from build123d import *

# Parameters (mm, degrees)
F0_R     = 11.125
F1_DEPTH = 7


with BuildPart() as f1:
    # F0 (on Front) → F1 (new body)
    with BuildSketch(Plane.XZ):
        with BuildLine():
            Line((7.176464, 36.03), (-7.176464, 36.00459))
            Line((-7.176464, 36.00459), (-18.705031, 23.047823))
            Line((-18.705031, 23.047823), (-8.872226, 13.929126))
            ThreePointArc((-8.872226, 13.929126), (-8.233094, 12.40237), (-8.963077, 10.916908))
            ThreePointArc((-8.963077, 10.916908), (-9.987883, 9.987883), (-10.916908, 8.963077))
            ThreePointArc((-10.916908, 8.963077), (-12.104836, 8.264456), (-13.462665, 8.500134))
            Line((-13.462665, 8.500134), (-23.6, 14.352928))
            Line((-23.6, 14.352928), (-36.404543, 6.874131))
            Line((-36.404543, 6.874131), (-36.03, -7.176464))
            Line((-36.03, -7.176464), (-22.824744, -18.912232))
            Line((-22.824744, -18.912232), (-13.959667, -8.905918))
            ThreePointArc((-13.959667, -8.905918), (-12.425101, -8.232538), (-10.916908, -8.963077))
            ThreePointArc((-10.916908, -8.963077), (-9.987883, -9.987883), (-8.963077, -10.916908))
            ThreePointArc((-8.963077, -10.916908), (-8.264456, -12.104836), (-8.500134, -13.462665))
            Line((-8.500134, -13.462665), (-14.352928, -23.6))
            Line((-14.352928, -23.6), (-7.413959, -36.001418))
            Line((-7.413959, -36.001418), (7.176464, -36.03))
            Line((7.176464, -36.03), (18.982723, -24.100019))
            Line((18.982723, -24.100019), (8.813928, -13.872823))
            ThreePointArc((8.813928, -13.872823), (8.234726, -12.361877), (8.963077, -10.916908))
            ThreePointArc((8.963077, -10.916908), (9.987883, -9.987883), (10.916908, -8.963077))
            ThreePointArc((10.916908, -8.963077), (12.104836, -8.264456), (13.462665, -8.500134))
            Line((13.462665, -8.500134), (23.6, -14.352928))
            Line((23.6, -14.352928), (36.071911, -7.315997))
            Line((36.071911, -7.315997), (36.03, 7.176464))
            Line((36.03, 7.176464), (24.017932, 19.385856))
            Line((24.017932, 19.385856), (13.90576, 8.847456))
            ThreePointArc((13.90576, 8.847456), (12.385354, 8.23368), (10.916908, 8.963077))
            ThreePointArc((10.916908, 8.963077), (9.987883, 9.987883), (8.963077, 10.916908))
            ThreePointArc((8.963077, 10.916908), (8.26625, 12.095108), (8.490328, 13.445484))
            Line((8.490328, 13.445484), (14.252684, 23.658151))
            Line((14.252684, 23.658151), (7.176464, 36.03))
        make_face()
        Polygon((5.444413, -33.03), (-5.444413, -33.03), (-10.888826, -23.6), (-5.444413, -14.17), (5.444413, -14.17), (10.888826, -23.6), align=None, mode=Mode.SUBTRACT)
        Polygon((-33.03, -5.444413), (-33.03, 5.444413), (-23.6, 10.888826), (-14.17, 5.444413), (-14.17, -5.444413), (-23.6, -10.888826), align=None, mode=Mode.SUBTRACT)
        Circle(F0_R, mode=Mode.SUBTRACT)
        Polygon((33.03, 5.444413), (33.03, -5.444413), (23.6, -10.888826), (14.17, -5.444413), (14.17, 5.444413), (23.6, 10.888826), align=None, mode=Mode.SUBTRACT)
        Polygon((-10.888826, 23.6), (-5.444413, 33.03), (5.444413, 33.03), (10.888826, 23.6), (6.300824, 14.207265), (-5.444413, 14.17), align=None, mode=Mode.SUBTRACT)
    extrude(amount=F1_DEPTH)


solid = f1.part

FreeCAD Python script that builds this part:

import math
import FreeCAD as App
import Part
import Sketcher

V = App.Vector

doc = App.newDocument("Part")
body = doc.addObject("PartDesign::Body", "Body")

# Sketch on XZ plane
sketch1 = doc.addObject("Sketcher::SketchObject", "Sketch")
body.addObject(sketch1)
sketch1.AttachmentSupport = (doc.XZ_Plane, [""])
sketch1.MapMode = "FlatFace"
sketch1.addGeometry([
    Part.LineSegment(V(7.176464, 36.03, 0), V(-7.176464, 36.00459, 0)),  # 0
    Part.LineSegment(V(-7.176464, 36.00459, 0), V(-18.705031, 23.047823, 0)),  # 1
    Part.LineSegment(V(-18.705031, 23.047823, 0), V(-8.872226, 13.929126, 0)),  # 2
    Part.ArcOfCircle(Part.Circle(V(-10.232183, 12.462664, 0), V(0, 0, 1), 1.999998), math.radians(-50.61311), math.radians(47.157981)),  # 3
    Part.ArcOfCircle(Part.Circle(V(0.000083, -0.000083, 0), V(0, 0, 1), 14.125117), math.radians(129.386969), math.radians(140.613031)),  # 4
    Part.ArcOfCircle(Part.Circle(V(-12.462665, 10.232186, 0), V(0, 0, 1), 2.000001), math.radians(-119.99997), math.radians(-39.386935)),  # 5
    Part.LineSegment(V(-13.462665, 8.500134, 0), V(-23.6, 14.352928, 0)),  # 6
    Part.LineSegment(V(-23.6, 14.352928, 0), V(-36.404543, 6.874131, 0)),  # 7
    Part.LineSegment(V(-36.404543, 6.874131, 0), V(-36.03, -7.176464, 0)),  # 8
    Part.LineSegment(V(-36.03, -7.176464, 0), V(-22.824744, -18.912232, 0)),  # 9
    Part.LineSegment(V(-22.824744, -18.912232, 0), V(-13.959667, -8.905918, 0)),  # 10
    Part.ArcOfCircle(Part.Circle(V(-12.462665, -10.232185, 0), V(0, 0, 1), 2), math.radians(39.386921), math.radians(138.460701)),  # 11
    Part.ArcOfCircle(Part.Circle(V(0.000083, 0.000083, 0), V(0, 0, 1), 14.125117), math.radians(-140.613031), math.radians(-129.386969)),  # 12
    Part.ArcOfCircle(Part.Circle(V(-10.232186, -12.462665, 0), V(0, 0, 1), 2.000001), math.radians(-29.99997), math.radians(50.613065)),  # 13
    Part.LineSegment(V(-8.500134, -13.462665, 0), V(-14.352928, -23.6, 0)),  # 14
    Part.LineSegment(V(-14.352928, -23.6, 0), V(-7.413959, -36.001418, 0)),  # 15
    Part.LineSegment(V(-7.413959, -36.001418, 0), V(7.176464, -36.03, 0)),  # 16
    Part.LineSegment(V(7.176464, -36.03, 0), V(18.982723, -24.100019, 0)),  # 17
    Part.LineSegment(V(18.982723, -24.100019, 0), V(8.813928, -13.872823, 0)),  # 18
    Part.ArcOfCircle(Part.Circle(V(10.232184, -12.462665, 0), V(0, 0, 1), 1.999999), math.radians(129.386894), math.radians(224.835966)),  # 19
    Part.ArcOfCircle(Part.Circle(V(-0.000083, 0.000083, 0), V(0, 0, 1), 14.125117), math.radians(-50.613031), math.radians(-39.386969)),  # 20
    Part.ArcOfCircle(Part.Circle(V(12.462665, -10.232186, 0), V(0, 0, 1), 2.000001), math.radians(60.00003), math.radians(140.613065)),  # 21
    Part.LineSegment(V(13.462665, -8.500134, 0), V(23.6, -14.352928, 0)),  # 22
    Part.LineSegment(V(23.6, -14.352928, 0), V(36.071911, -7.315997, 0)),  # 23
    Part.LineSegment(V(36.071911, -7.315997, 0), V(36.03, 7.176464, 0)),  # 24
    Part.LineSegment(V(36.03, 7.176464, 0), V(24.017932, 19.385856, 0)),  # 25
    Part.LineSegment(V(24.017932, 19.385856, 0), V(13.90576, 8.847456, 0)),  # 26
    Part.ArcOfCircle(Part.Circle(V(12.462665, 10.232185, 0), V(0, 0, 1), 1.999999), math.radians(-140.613087), math.radians(-43.817573)),  # 27
    Part.ArcOfCircle(Part.Circle(V(-0.000083, -0.000083, 0), V(0, 0, 1), 14.125117), math.radians(39.386969), math.radians(50.613031)),  # 28
    Part.ArcOfCircle(Part.Circle(V(10.232186, 12.462665, 0), V(0, 0, 1), 2.000001), math.radians(150.566743), math.radians(230.613066)),  # 29
    Part.LineSegment(V(8.490328, 13.445484, 0), V(14.252684, 23.658151, 0)),  # 30
    Part.LineSegment(V(14.252684, 23.658151, 0), V(7.176464, 36.03, 0)),  # 31
    Part.LineSegment(V(10.888826, -23.6, 0), V(5.444413, -33.03, 0)),  # 32
    Part.LineSegment(V(5.444413, -33.03, 0), V(-5.444413, -33.03, 0)),  # 33
    Part.LineSegment(V(-5.444413, -33.03, 0), V(-10.888826, -23.6, 0)),  # 34
    Part.LineSegment(V(-10.888826, -23.6, 0), V(-5.444413, -14.17, 0)),  # 35
    Part.LineSegment(V(-5.444413, -14.17, 0), V(5.444413, -14.17, 0)),  # 36
    Part.LineSegment(V(5.444413, -14.17, 0), V(10.888826, -23.6, 0)),  # 37
    Part.LineSegment(V(-23.6, -10.888826, 0), V(-33.03, -5.444413, 0)),  # 38
    Part.LineSegment(V(-33.03, -5.444413, 0), V(-33.03, 5.444413, 0)),  # 39
    Part.LineSegment(V(-33.03, 5.444413, 0), V(-23.6, 10.888826, 0)),  # 40
    Part.LineSegment(V(-23.6, 10.888826, 0), V(-14.17, 5.444413, 0)),  # 41
    Part.LineSegment(V(-14.17, 5.444413, 0), V(-14.17, -5.444413, 0)),  # 42
    Part.LineSegment(V(-14.17, -5.444413, 0), V(-23.6, -10.888826, 0)),  # 43
    Part.Circle(V(0, 0, 0), V(0, 0, 1), 11.125),  # 44
    Part.LineSegment(V(23.6, 10.888826, 0), V(33.03, 5.444413, 0)),  # 45
    Part.LineSegment(V(33.03, 5.444413, 0), V(33.03, -5.444413, 0)),  # 46
    Part.LineSegment(V(33.03, -5.444413, 0), V(23.6, -10.888826, 0)),  # 47
    Part.LineSegment(V(23.6, -10.888826, 0), V(14.17, -5.444413, 0)),  # 48
    Part.LineSegment(V(14.17, -5.444413, 0), V(14.17, 5.444413, 0)),  # 49
    Part.LineSegment(V(14.17, 5.444413, 0), V(23.6, 10.888826, 0)),  # 50
    Part.LineSegment(V(-5.444413, 14.17, 0), V(-10.888826, 23.6, 0)),  # 51
    Part.LineSegment(V(-10.888826, 23.6, 0), V(-5.444413, 33.03, 0)),  # 52
    Part.LineSegment(V(-5.444413, 33.03, 0), V(5.444413, 33.03, 0)),  # 53
    Part.LineSegment(V(5.444413, 33.03, 0), V(10.888826, 23.6, 0)),  # 54
    Part.LineSegment(V(10.888826, 23.6, 0), V(6.300824, 14.207265, 0)),  # 55
    Part.LineSegment(V(6.300824, 14.207265, 0), V(-5.444413, 14.17, 0)),  # 56
], False)
sketch1.addConstraint([
    Sketcher.Constraint("Coincident", 0, 2, 1, 1),
    Sketcher.Constraint("Coincident", 1, 2, 2, 1),
    Sketcher.Constraint("Coincident", 2, 2, 3, 2),
    Sketcher.Constraint("Coincident", 3, 1, 4, 1),
    Sketcher.Constraint("Coincident", 4, 2, 5, 2),
    Sketcher.Constraint("Coincident", 5, 1, 6, 1),
    Sketcher.Constraint("Coincident", 6, 2, 7, 1),
    Sketcher.Constraint("Coincident", 7, 2, 8, 1),
    Sketcher.Constraint("Coincident", 8, 2, 9, 1),
    Sketcher.Constraint("Coincident", 9, 2, 10, 1),
    Sketcher.Constraint("Coincident", 10, 2, 11, 2),
    Sketcher.Constraint("Coincident", 11, 1, 12, 1),
    Sketcher.Constraint("Coincident", 12, 2, 13, 2),
    Sketcher.Constraint("Coincident", 13, 1, 14, 1),
    Sketcher.Constraint("Coincident", 14, 2, 15, 1),
    Sketcher.Constraint("Coincident", 15, 2, 16, 1),
    Sketcher.Constraint("Coincident", 16, 2, 17, 1),
    Sketcher.Constraint("Coincident", 17, 2, 18, 1),
    Sketcher.Constraint("Coincident", 18, 2, 19, 2),
    Sketcher.Constraint("Coincident", 19, 1, 20, 1),
    Sketcher.Constraint("Coincident", 20, 2, 21, 2),
    Sketcher.Constraint("Coincident", 21, 1, 22, 1),
    Sketcher.Constraint("Coincident", 22, 2, 23, 1),
    Sketcher.Constraint("Coincident", 23, 2, 24, 1),
    Sketcher.Constraint("Coincident", 24, 2, 25, 1),
    Sketcher.Constraint("Coincident", 25, 2, 26, 1),
    Sketcher.Constraint("Coincident", 26, 2, 27, 2),
    Sketcher.Constraint("Coincident", 27, 1, 28, 1),
    Sketcher.Constraint("Coincident", 28, 2, 29, 2),
    Sketcher.Constraint("Coincident", 29, 1, 30, 1),
    Sketcher.Constraint("Coincident", 30, 2, 31, 1),
    Sketcher.Constraint("Coincident", 31, 2, 0, 1),
    Sketcher.Constraint("Coincident", 32, 2, 33, 1),
    Sketcher.Constraint("Coincident", 33, 2, 34, 1),
    Sketcher.Constraint("Coincident", 34, 2, 35, 1),
    Sketcher.Constraint("Coincident", 35, 2, 36, 1),
    Sketcher.Constraint("Coincident", 36, 2, 37, 1),
    Sketcher.Constraint("Coincident", 37, 2, 32, 1),
    Sketcher.Constraint("Coincident", 38, 2, 39, 1),
    Sketcher.Constraint("Coincident", 39, 2, 40, 1),
    Sketcher.Constraint("Coincident", 40, 2, 41, 1),
    Sketcher.Constraint("Coincident", 41, 2, 42, 1),
    Sketcher.Constraint("Coincident", 42, 2, 43, 1),
    Sketcher.Constraint("Coincident", 43, 2, 38, 1),
    Sketcher.Constraint("Coincident", 45, 2, 46, 1),
    Sketcher.Constraint("Coincident", 46, 2, 47, 1),
    Sketcher.Constraint("Coincident", 47, 2, 48, 1),
    Sketcher.Constraint("Coincident", 48, 2, 49, 1),
    Sketcher.Constraint("Coincident", 49, 2, 50, 1),
    Sketcher.Constraint("Coincident", 50, 2, 45, 1),
    Sketcher.Constraint("Coincident", 51, 2, 52, 1),
    Sketcher.Constraint("Coincident", 52, 2, 53, 1),
    Sketcher.Constraint("Coincident", 53, 2, 54, 1),
    Sketcher.Constraint("Coincident", 54, 2, 55, 1),
    Sketcher.Constraint("Coincident", 55, 2, 56, 1),
    Sketcher.Constraint("Coincident", 56, 2, 51, 1),
    Sketcher.Constraint("Horizontal", 33),
    Sketcher.Constraint("Horizontal", 36),
    Sketcher.Constraint("Vertical", 39),
    Sketcher.Constraint("Vertical", 42),
    Sketcher.Constraint("Vertical", 46),
    Sketcher.Constraint("Vertical", 49),
    Sketcher.Constraint("Horizontal", 53),
    Sketcher.Constraint("Coincident", 44, 3, -1, 1),
    Sketcher.Constraint("Radius", 3, 1.999998),
    Sketcher.Constraint("Radius", 5, 2.000001),
    Sketcher.Constraint("Radius", 11, 2.0),
    Sketcher.Constraint("Radius", 13, 2.000001),
    Sketcher.Constraint("Radius", 19, 1.999999),
    Sketcher.Constraint("Radius", 21, 2.000001),
    Sketcher.Constraint("Radius", 27, 1.999999),
    Sketcher.Constraint("Radius", 29, 2.000001),
    Sketcher.Constraint("Diameter", 44, 22.25),
    Sketcher.Constraint("DistanceX", 6, 2, -1, 1, 23.6),
    Sketcher.Constraint("DistanceY", 14, 2, -1, 1, 23.6),
    Sketcher.Constraint("DistanceX", -1, 1, 22, 2, 23.6),
    Sketcher.Constraint("DistanceY", 34, 2, -1, 1, 23.6),
    Sketcher.Constraint("DistanceY", 37, 2, -1, 1, 23.6),
    Sketcher.Constraint("DistanceX", 40, 2, -1, 1, 23.6),
    Sketcher.Constraint("DistanceX", 43, 2, -1, 1, 23.6),
    Sketcher.Constraint("DistanceX", -1, 1, 47, 2, 23.6),
    Sketcher.Constraint("DistanceX", -1, 1, 50, 2, 23.6),
    Sketcher.Constraint("DistanceY", -1, 1, 51, 2, 23.6),
    Sketcher.Constraint("DistanceY", -1, 1, 54, 2, 23.6),
    Sketcher.Constraint("DistanceX", 8, 2, -1, 1, 36.03),
    Sketcher.Constraint("DistanceY", 16, 2, -1, 1, 36.03),
    Sketcher.Constraint("DistanceX", -1, 1, 24, 2, 36.03),
    Sketcher.Constraint("DistanceY", -1, 1, 31, 2, 36.03),
    Sketcher.Constraint("DistanceY", 32, 2, -1, 1, 33.03),
    Sketcher.Constraint("DistanceY", 35, 2, -1, 1, 14.17),
    Sketcher.Constraint("DistanceX", 38, 2, -1, 1, 33.03),
    Sketcher.Constraint("DistanceX", 41, 2, -1, 1, 14.17),
    Sketcher.Constraint("DistanceX", -1, 1, 45, 2, 33.03),
    Sketcher.Constraint("DistanceX", -1, 1, 48, 2, 14.17),
    Sketcher.Constraint("DistanceY", -1, 1, 52, 2, 33.03),
    Sketcher.Constraint("DistanceY", -1, 1, 56, 2, 14.17),
    Sketcher.Constraint("Radius", 4, 14.125117),
    Sketcher.Constraint("Radius", 12, 14.125117),
    Sketcher.Constraint("Radius", 20, 14.125117),
    Sketcher.Constraint("Radius", 28, 14.125117),
    Sketcher.Constraint("Distance", 0, 14.35295),
    Sketcher.Constraint("Distance", 9, 17.666551),
    Sketcher.Constraint("Distance", 16, 14.590451),
    Sketcher.Constraint("Distance", 23, 14.320159),
    Sketcher.Constraint("Distance", 24, 14.492522),
    Sketcher.Constraint("Distance", 26, 14.605269),
    Sketcher.Constraint("Distance", 30, 11.726181),
    Sketcher.Constraint("DistanceX", 33, 2, 33, 1, 10.888826),
    Sketcher.Constraint("DistanceX", 36, 1, 36, 2, 10.888826),
    Sketcher.Constraint("DistanceX", 53, 1, 53, 2, 10.888826),
    Sketcher.Constraint("DistanceY", 39, 1, 39, 2, 10.888826),
    Sketcher.Constraint("DistanceY", 42, 2, 42, 1, 10.888826),
    Sketcher.Constraint("DistanceY", 46, 2, 46, 1, 10.888826),
    Sketcher.Constraint("DistanceY", 49, 1, 49, 2, 10.888826),
    Sketcher.Constraint("DistanceY", -1, 1, 0, 2, 36.00459),
    Sketcher.Constraint("DistanceX", 1, 2, -1, 1, 18.705031),
    Sketcher.Constraint("DistanceX", 4, 2, -1, 1, 10.916908),
    Sketcher.Constraint("DistanceY", -1, 1, 7, 2, 6.874131),
    Sketcher.Constraint("DistanceY", 9, 2, -1, 1, 18.912232),
    Sketcher.Constraint("DistanceY", 12, 2, -1, 1, 10.916908),
    Sketcher.Constraint("DistanceX", 15, 2, -1, 1, 7.413959),
    Sketcher.Constraint("DistanceY", 17, 2, -1, 1, 24.100019),
    Sketcher.Constraint("DistanceX", -1, 1, 18, 2, 8.813928),
    Sketcher.Constraint("DistanceY", 19, 1, -1, 1, 10.916908),
    Sketcher.Constraint("DistanceX", -1, 1, 20, 2, 10.916908),
    Sketcher.Constraint("DistanceX", -1, 1, 23, 2, 36.071911),
    Sketcher.Constraint("DistanceX", -1, 1, 25, 2, 24.017932),
    Sketcher.Constraint("DistanceX", -1, 1, 26, 2, 13.90576),
    Sketcher.Constraint("DistanceY", -1, 1, 28, 2, 10.916908),
    Sketcher.Constraint("DistanceX", -1, 1, 29, 1, 8.490328),
    Sketcher.Constraint("DistanceY", -1, 1, 30, 2, 23.658151),
    Sketcher.Constraint("Distance", 1, 17.343174),
    Sketcher.Constraint("Distance", 2, 13.410246),
    Sketcher.Constraint("Distance", 6, 11.705587),
    Sketcher.Constraint("Distance", 7, 14.828645),
    Sketcher.Constraint("Distance", 8, 14.055586),
    Sketcher.Constraint("Distance", 10, 13.368467),
    Sketcher.Constraint("Distance", 14, 11.705587),
    Sketcher.Constraint("Distance", 15, 14.210716),
    Sketcher.Constraint("Distance", 17, 16.784284),
    Sketcher.Constraint("Distance", 18, 14.422203),
    Sketcher.Constraint("Distance", 22, 11.705587),
    Sketcher.Constraint("Distance", 25, 17.127727),
    Sketcher.Constraint("Distance", 31, 14.252562),
    Sketcher.Constraint("Distance", 32, 10.888826),
    Sketcher.Constraint("Distance", 34, 10.888826),
    Sketcher.Constraint("Distance", 35, 10.888826),
    Sketcher.Constraint("Distance", 38, 10.888826),
    Sketcher.Constraint("Distance", 40, 10.888826),
    Sketcher.Constraint("Distance", 41, 10.888826),
    Sketcher.Constraint("Distance", 45, 10.888826),
    Sketcher.Constraint("Distance", 47, 10.888826),
    Sketcher.Constraint("Distance", 48, 10.888826),
    Sketcher.Constraint("Distance", 51, 10.888826),
    Sketcher.Constraint("Distance", 52, 10.888826),
    Sketcher.Constraint("Distance", 54, 10.888826),
    Sketcher.Constraint("Distance", 55, 10.453384),
    Sketcher.Constraint("Distance", 56, 11.745296),
    Sketcher.Constraint("DistanceX", 3, 3, -1, 1, 10.232183),
    Sketcher.Constraint("DistanceY", -1, 1, 3, 3, 12.462664),
    Sketcher.Constraint("DistanceX", 5, 3, -1, 1, 12.462665),
    Sketcher.Constraint("DistanceY", -1, 1, 5, 3, 10.232186),
    Sketcher.Constraint("DistanceX", 11, 3, -1, 1, 12.462665),
    Sketcher.Constraint("DistanceY", 11, 3, -1, 1, 10.232185),
    Sketcher.Constraint("DistanceX", 13, 3, -1, 1, 10.232186),
    Sketcher.Constraint("DistanceY", 13, 3, -1, 1, 12.462665),
    Sketcher.Constraint("DistanceX", -1, 1, 19, 3, 10.232184),
    Sketcher.Constraint("DistanceX", -1, 1, 21, 3, 12.462665),
    Sketcher.Constraint("DistanceY", 21, 3, -1, 1, 10.232186),
    Sketcher.Constraint("DistanceX", -1, 1, 27, 3, 12.462665),
    Sketcher.Constraint("DistanceY", -1, 1, 27, 3, 10.232185),
    Sketcher.Constraint("DistanceX", -1, 1, 29, 3, 10.232186),
    Sketcher.Constraint("DistanceY", -1, 1, 29, 3, 12.462665),
    Sketcher.Constraint("DistanceX", 3, 1, -1, 1, 8.963077),
    Sketcher.Constraint("DistanceX", 5, 1, -1, 1, 13.462665),
    Sketcher.Constraint("DistanceX", 11, 1, -1, 1, 10.916908),
    Sketcher.Constraint("DistanceX", 13, 1, -1, 1, 8.500134),
    Sketcher.Constraint("DistanceX", -1, 1, 27, 1, 10.916908),
    Sketcher.Constraint("DistanceX", -1, 1, 32, 2, 5.444413),
    Sketcher.Constraint("DistanceY", 38, 2, -1, 1, 5.444413),
    Sketcher.Constraint("DistanceY", -1, 1, 45, 2, 5.444413),
    Sketcher.Constraint("DistanceX", 51, 2, -1, 1, 10.888826),
])
pad1 = doc.addObject("PartDesign::Pad", "Pad")
body.addObject(pad1)
pad1.Profile = sketch1
pad1.Length = 7

doc.recompute()
